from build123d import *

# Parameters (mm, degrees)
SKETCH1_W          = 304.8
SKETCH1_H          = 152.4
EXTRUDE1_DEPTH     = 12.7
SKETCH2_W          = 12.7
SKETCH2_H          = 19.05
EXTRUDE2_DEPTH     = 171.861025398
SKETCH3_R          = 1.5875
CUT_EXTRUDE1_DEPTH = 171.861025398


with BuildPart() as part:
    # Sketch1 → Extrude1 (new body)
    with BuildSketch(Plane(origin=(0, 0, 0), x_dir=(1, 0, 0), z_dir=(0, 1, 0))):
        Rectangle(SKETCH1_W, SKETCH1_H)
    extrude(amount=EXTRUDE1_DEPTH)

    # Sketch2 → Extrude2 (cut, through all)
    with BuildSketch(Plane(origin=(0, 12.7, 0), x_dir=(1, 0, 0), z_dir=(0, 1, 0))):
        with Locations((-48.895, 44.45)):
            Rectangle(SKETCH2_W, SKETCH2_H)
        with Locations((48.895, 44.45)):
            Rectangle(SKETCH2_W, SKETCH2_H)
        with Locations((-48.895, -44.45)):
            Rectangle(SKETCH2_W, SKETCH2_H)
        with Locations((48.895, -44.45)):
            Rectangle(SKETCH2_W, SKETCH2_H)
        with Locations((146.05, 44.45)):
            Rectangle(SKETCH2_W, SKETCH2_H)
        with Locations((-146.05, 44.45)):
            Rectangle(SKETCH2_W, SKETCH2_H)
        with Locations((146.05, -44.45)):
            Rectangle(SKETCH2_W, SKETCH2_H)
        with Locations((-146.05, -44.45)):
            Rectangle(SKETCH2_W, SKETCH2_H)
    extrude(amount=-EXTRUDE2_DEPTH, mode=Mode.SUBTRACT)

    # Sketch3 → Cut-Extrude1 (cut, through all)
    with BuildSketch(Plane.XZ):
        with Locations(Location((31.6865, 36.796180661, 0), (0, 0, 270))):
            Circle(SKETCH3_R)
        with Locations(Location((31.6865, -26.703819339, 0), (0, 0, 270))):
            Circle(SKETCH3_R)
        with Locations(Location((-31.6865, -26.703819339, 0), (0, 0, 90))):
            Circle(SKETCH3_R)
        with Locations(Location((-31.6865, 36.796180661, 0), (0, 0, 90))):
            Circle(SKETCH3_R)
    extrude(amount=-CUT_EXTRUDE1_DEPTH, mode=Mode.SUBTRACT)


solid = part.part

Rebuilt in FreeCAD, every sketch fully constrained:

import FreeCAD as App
import Part
import Sketcher

V = App.Vector
Q = App.Units.Quantity


def add_polygon(sketch, points):
    """Adds a closed chain of lines whose ends are joined by coincident constraints."""
    first, n = sketch.GeometryCount, len(points)
    for a, b in zip(points, points[1:] + points[:1]):
        sketch.addGeometry(Part.LineSegment(App.Vector(*a, 0), App.Vector(*b, 0)), False)
    for i in range(n):
        sketch.addConstraint(Sketcher.Constraint("Coincident", first + i, 2, first + (i + 1) % n, 1))

doc = App.newDocument("Part")
body = doc.addObject("PartDesign::Body", "Body")

sketch1 = body.newObject("Sketcher::SketchObject", "Sketch")
sketch1.AttachmentSupport = (doc.getObject("XZ_Plane"), [""])
sketch1.MapMode = "FlatFace"
add_polygon(sketch1, [(-152, -76), (-152, 76), (152, 76), (152, -76)])
sketch1.addConstraint(Sketcher.Constraint("Vertical", 0))
sketch1.addConstraint(Sketcher.Constraint("Horizontal", 1))
sketch1.addConstraint(Sketcher.Constraint("Vertical", 2))
sketch1.addConstraint(Sketcher.Constraint("Horizontal", 3))
sketch1.addConstraint(Sketcher.Constraint("Symmetric", 0, 2, 2, 2, -1, 1))
sketch1.addConstraint(Sketcher.Constraint("DistanceX", 1, 1, 1, 2, Q("12 in")))
sketch1.addConstraint(Sketcher.Constraint("DistanceY", 0, 1, 0, 2, Q("6 in")))
pad1 = body.newObject("PartDesign::Pad", "Pad")
pad1.Profile = sketch1
pad1.Length = Q("0.5 in")
pad1.Reversed = True

sketch2 = body.newObject("Sketcher::SketchObject", "Sketch001")
sketch2.AttachmentSupport = (doc.getObject("XZ_Plane"), [""])
sketch2.MapMode = "FlatFace"
sketch2.AttachmentOffset = App.Placement(V(0, 0, -0.5 * 25.4), App.Rotation())
add_polygon(sketch2, [(-55, -54), (-55, -35), (-43, -35), (-43, -54)])
add_polygon(sketch2, [(43, -54), (43, -35), (55, -35), (55, -54)])
add_polygon(sketch2, [(-55, 35), (-55, 54), (-43, 54), (-43, 35)])
add_polygon(sketch2, [(43, 35), (43, 54), (55, 54), (55, 35)])
add_polygon(sketch2, [(140, -54), (140, -35), (152, -35), (152, -54)])
add_polygon(sketch2, [(-152, -54), (-152, -35), (-140, -35), (-140, -54)])
add_polygon(sketch2, [(140, 35), (140, 54), (152, 54), (152, 35)])
add_polygon(sketch2, [(-152, 35), (-152, 54), (-140, 54), (-140, 35)])
sketch2.addConstraint(Sketcher.Constraint("Vertical", 0))
sketch2.addConstraint(Sketcher.Constraint("Horizontal", 1))
sketch2.addConstraint(Sketcher.Constraint("Vertical", 2))
sketch2.addConstraint(Sketcher.Constraint("Horizontal", 3))
sketch2.addConstraint(Sketcher.Constraint("Vertical", 4))
sketch2.addConstraint(Sketcher.Constraint("Horizontal", 5))
sketch2.addConstraint(Sketcher.Constraint("Vertical", 6))
sketch2.addConstraint(Sketcher.Constraint("Horizontal", 7))
sketch2.addConstraint(Sketcher.Constraint("Vertical", 8))
sketch2.addConstraint(Sketcher.Constraint("Horizontal", 9))
sketch2.addConstraint(Sketcher.Constraint("Vertical", 10))
sketch2.addConstraint(Sketcher.Constraint("Horizontal", 11))
sketch2.addConstraint(Sketcher.Constraint("Vertical", 12))
sketch2.addConstraint(Sketcher.Constraint("Horizontal", 13))
sketch2.addConstraint(Sketcher.Constraint("Vertical", 14))
sketch2.addConstraint(Sketcher.Constraint("Horizontal", 15))
sketch2.addConstraint(Sketcher.Constraint("Vertical", 16))
sketch2.addConstraint(Sketcher.Constraint("Horizontal", 17))
sketch2.addConstraint(Sketcher.Constraint("Vertical", 18))
sketch2.addConstraint(Sketcher.Constraint("Horizontal", 19))
sketch2.addConstraint(Sketcher.Constraint("Vertical", 20))
sketch2.addConstraint(Sketcher.Constraint("Horizontal", 21))
sketch2.addConstraint(Sketcher.Constraint("Vertical", 22))
sketch2.addConstraint(Sketcher.Constraint("Horizontal", 23))
sketch2.addConstraint(Sketcher.Constraint("Vertical", 24))
sketch2.addConstraint(Sketcher.Constraint("Horizontal", 25))
sketch2.addConstraint(Sketcher.Constraint("Vertical", 26))
sketch2.addConstraint(Sketcher.Constraint("Horizontal", 27))
sketch2.addConstraint(Sketcher.Constraint("Vertical", 28))
sketch2.addConstraint(Sketcher.Constraint("Horizontal", 29))
sketch2.addConstraint(Sketcher.Constraint("Vertical", 30))
sketch2.addConstraint(Sketcher.Constraint("Horizontal", 31))
sketch2.addConstraint(Sketcher.Constraint("Symmetric", 6, 2, 8, 2, -1, 1))
sketch2.addConstraint(Sketcher.Constraint("Symmetric", 4, 2, 10, 2, -1, 1))
sketch2.addConstraint(Sketcher.Constraint("Symmetric", 2, 2, 12, 2, -1, 1))
sketch2.addConstraint(Sketcher.Constraint("Symmetric", 0, 2, 14, 2, -1, 1))
sketch2.addConstraint(Sketcher.Constraint("Symmetric", 22, 2, 24, 2, -1, 1))
sketch2.addConstraint(Sketcher.Constraint("Symmetric", 20, 2, 26, 2, -1, 1))
sketch2.addConstraint(Sketcher.Constraint("Symmetric", 18, 2, 28, 2, -1, 1))
sketch2.addConstraint(Sketcher.Constraint("Symmetric", 16, 2, 30, 2, -1, 1))
sketch2.addConstraint(Sketcher.Constraint("Symmetric", 1, 2, 4, 2, -2))
sketch2.addConstraint(Sketcher.Constraint("Symmetric", 3, 2, 6, 2, -2))
sketch2.addConstraint(Sketcher.Constraint("Symmetric", 17, 2, 20, 2, -2))
sketch2.addConstraint(Sketcher.Constraint("Symmetric", 19, 2, 22, 2, -2))
sketch2.addConstraint(Sketcher.Constraint("Horizontal", 5, 2, 16, 2))
sketch2.addConstraint(Sketcher.Constraint("Horizontal", 7, 2, 18, 2))
sketch2.addConstraint(Sketcher.Constraint("Equal", 15, 17))
sketch2.addConstraint(Sketcher.Constraint("DistanceX", 1, 1, 1, 2, Q("0.5 in")))
sketch2.addConstraint(Sketcher.Constraint("DistanceX", -1, 1, 17, 2, Q("6 in")))
sketch2.addConstraint(Sketcher.Constraint("DistanceY", 0, 1, 0, 2, Q("0.75 in")))
sketch2.addConstraint(Sketcher.Constraint("DistanceY", 0, 2, 8, 2, Q("3.5 in")))
sketch2.addConstraint(Sketcher.Constraint("DistanceX", 1, 2, 4, 2, Q("3.35 in")))
pocket1 = body.newObject("PartDesign::Pocket", "Pocket")
pocket1.Profile = sketch2
pocket1.Type = "ThroughAll"
pocket1.Reversed = True

sketch3 = body.newObject("Sketcher::SketchObject", "Sketch002")
sketch3.AttachmentSupport = (doc.getObject("XZ_Plane"), [""])
sketch3.MapMode = "FlatFace"
sketch3.addGeometry(Part.Circle(V(31.7, 36.8, 0), V(0, 0, 1), 1.6), False)
sketch3.addGeometry(Part.Circle(V(31.7, -26.7, 0), V(0, 0, 1), 1.6), False)
sketch3.addGeometry(Part.Circle(V(-31.7, -26.7, 0), V(0, 0, 1), 1.6), False)
sketch3.addGeometry(Part.Circle(V(-31.7, 36.8, 0), V(0, 0, 1), 1.6), False)
sketch3.addConstraint(Sketcher.Constraint("Equal", 0, 1))
sketch3.addConstraint(Sketcher.Constraint("Equal", 1, 2))
sketch3.addConstraint(Sketcher.Constraint("Equal", 2, 3))
sketch3.addConstraint(Sketcher.Constraint("Symmetric", 1, 3, 2, 3, -2))
sketch3.addConstraint(Sketcher.Constraint("Symmetric", 0, 3, 3, 3, -2))
sketch3.addConstraint(Sketcher.Constraint("Vertical", 0, 3, 1, 3))
sketch3.addConstraint(Sketcher.Constraint("Diameter", 0, Q("0.125 in")))
sketch3.addConstraint(Sketcher.Constraint("DistanceY", 1, 3, 0, 3, Q("2.5 in")))
sketch3.addConstraint(Sketcher.Constraint("DistanceX", 2, 3, 1, 3, Q("2.495 in")))
sketch3.addConstraint(Sketcher.Constraint("DistanceY", -1, 1, 0, 3, 36.796181))
pocket2 = body.newObject("PartDesign::Pocket", "Pocket001")
pocket2.Profile = sketch3
pocket2.Type = "ThroughAll"

doc.recompute()
